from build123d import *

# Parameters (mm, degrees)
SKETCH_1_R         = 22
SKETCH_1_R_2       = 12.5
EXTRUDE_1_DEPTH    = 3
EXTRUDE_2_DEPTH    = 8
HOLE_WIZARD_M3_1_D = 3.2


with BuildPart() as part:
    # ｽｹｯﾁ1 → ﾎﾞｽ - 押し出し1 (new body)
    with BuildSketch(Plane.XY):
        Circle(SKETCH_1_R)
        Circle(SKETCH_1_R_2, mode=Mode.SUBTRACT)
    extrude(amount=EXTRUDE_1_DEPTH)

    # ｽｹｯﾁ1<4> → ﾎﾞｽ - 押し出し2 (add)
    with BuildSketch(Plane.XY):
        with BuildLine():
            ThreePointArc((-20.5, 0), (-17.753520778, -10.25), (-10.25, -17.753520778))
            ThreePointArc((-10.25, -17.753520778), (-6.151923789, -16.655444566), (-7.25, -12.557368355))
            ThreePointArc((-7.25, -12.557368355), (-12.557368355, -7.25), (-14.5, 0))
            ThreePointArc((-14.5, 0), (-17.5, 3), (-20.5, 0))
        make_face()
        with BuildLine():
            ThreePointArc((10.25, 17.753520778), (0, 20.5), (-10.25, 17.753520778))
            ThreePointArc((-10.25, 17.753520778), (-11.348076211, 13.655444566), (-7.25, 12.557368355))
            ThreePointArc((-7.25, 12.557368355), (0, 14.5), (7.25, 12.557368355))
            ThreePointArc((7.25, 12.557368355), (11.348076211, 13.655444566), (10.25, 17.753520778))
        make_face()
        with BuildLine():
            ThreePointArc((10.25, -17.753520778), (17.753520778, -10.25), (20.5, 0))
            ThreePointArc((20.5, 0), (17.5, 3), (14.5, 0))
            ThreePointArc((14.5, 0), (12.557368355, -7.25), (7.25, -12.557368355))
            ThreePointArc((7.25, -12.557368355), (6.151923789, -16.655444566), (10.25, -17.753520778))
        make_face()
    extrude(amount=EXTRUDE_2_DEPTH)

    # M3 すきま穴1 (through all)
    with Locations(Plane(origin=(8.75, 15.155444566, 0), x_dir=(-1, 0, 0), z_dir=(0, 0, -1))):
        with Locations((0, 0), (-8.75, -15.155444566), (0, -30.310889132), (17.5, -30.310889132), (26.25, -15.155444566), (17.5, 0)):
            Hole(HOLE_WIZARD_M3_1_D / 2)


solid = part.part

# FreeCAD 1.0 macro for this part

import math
import FreeCAD as App
import Part
import Sketcher
from FreeCAD import Vector

doc = App.newDocument("Part")
body = doc.addObject("PartDesign::Body", "Body")

# Sketch on XY plane
sketch1 = doc.addObject("Sketcher::SketchObject", "Sketch")
body.addObject(sketch1)
sketch1.AttachmentSupport = (doc.XY_Plane, [""])
sketch1.MapMode = "FlatFace"
sketch1.addGeometry([
    Part.Circle(Vector(0, 0, 0), Vector(0, 0, 1), 22),
    Part.Circle(Vector(0, 0, 0), Vector(0, 0, 1), 12),
], False)
sketch1.addConstraint([
    Sketcher.Constraint("Coincident", 0, 3, -1, 1),
    Sketcher.Constraint("Coincident", 1, 3, -1, 1),
    Sketcher.Constraint("Diameter", 0, 44.0),
    Sketcher.Constraint("Diameter", 1, 25.0),
])
pad1 = doc.addObject("PartDesign::Pad", "Pad")
body.addObject(pad1)
pad1.Profile = sketch1
pad1.Length = 3

# Sketch on XY plane
sketch2 = doc.addObject("Sketcher::SketchObject", "Sketch001")
body.addObject(sketch2)
sketch2.AttachmentSupport = (doc.XY_Plane, [""])
sketch2.MapMode = "FlatFace"
sketch2.addGeometry([
    Part.ArcOfCircle(Part.Circle(Vector(0, 0, 0), Vector(0, 0, 1), 20.5), math.radians(180), math.radians(240)),  # 0
    Part.ArcOfCircle(Part.Circle(Vector(-8.8, -15.2, 0), Vector(0, 0, 1), 3), math.radians(-120), math.radians(60)),  # 1
    Part.ArcOfCircle(Part.Circle(Vector(0, 0, 0), Vector(0, 0, 1), 14.5), math.radians(180), math.radians(240)),  # 2
    Part.ArcOfCircle(Part.Circle(Vector(-17.5, 0, 0), Vector(0, 0, 1), 3), math.radians(0), math.radians(180)),  # 3
    Part.ArcOfCircle(Part.Circle(Vector(0, 0, 0), Vector(0, 0, 1), 20.5), math.radians(60), math.radians(120)),  # 4
    Part.ArcOfCircle(Part.Circle(Vector(-8.8, 15.2, 0), Vector(0, 0, 1), 3), math.radians(120), math.radians(300)),  # 5
    Part.ArcOfCircle(Part.Circle(Vector(0, 0, 0), Vector(0, 0, 1), 14.5), math.radians(60), math.radians(120)),  # 6
    Part.ArcOfCircle(Part.Circle(Vector(8.8, 15.2, 0), Vector(0, 0, 1), 3), math.radians(-120), math.radians(60)),  # 7
    Part.ArcOfCircle(Part.Circle(Vector(0, 0, 0), Vector(0, 0, 1), 20.5), math.radians(-60), math.radians(0)),  # 8
    Part.ArcOfCircle(Part.Circle(Vector(17.5, 0, 0), Vector(0, 0, 1), 3), math.radians(0), math.radians(180)),  # 9
    Part.ArcOfCircle(Part.Circle(Vector(0, 0, 0), Vector(0, 0, 1), 14.5), math.radians(-60), math.radians(0)),  # 10
    Part.ArcOfCircle(Part.Circle(Vector(8.8, -15.2, 0), Vector(0, 0, 1), 3), math.radians(120), math.radians(300)),  # 11
], False)
sketch2.addConstraint([
    Sketcher.Constraint("Tangent", 0, 2, 1, 1),
    Sketcher.Constraint("Tangent", 1, 2, 2, 2),
    Sketcher.Constraint("Tangent", 2, 1, 3, 1),
    Sketcher.Constraint("Tangent", 3, 2, 0, 1),
    Sketcher.Constraint("Tangent", 4, 2, 5, 1),
    Sketcher.Constraint("Tangent", 5, 2, 6, 2),
    Sketcher.Constraint("Tangent", 6, 1, 7, 1),
    Sketcher.Constraint("Tangent", 7, 2, 4, 1),
    Sketcher.Constraint("Tangent", 8, 2, 9, 1),
    Sketcher.Constraint("Tangent", 9, 2, 10, 2),
    Sketcher.Constraint("Tangent", 10, 1, 11, 1),
    Sketcher.Constraint("Tangent", 11, 2, 8, 1),
    Sketcher.Constraint("Coincident", 0, 3, -1, 1),
    Sketcher.Constraint("Coincident", 2, 3, -1, 1),
    Sketcher.Constraint("Coincident", 4, 3, -1, 1),
    Sketcher.Constraint("Coincident", 6, 3, -1, 1),
    Sketcher.Constraint("Coincident", 8, 3, -1, 1),
    Sketcher.Constraint("Coincident", 10, 3, -1, 1),
    Sketcher.Constraint("Equal", 0, 4),
    Sketcher.Constraint("Equal", 3, 5),
    Sketcher.Constraint("Equal", 4, 8),
    Sketcher.Constraint("Equal", 7, 9),
    Sketcher.Constraint("PointOnObject", 3, 3, -1),
    Sketcher.Constraint("PointOnObject", 9, 3, -1),
    Sketcher.Constraint("Horizontal", 5, 3, 7, 3),
    Sketcher.Constraint("Horizontal", 1, 3, 11, 3),
    Sketcher.Constraint("Vertical", 1, 3, 5, 3),
    Sketcher.Constraint("Radius", 1, 3.0),
    Sketcher.Constraint("Radius", 0, 20.5),
    Sketcher.Constraint("DistanceX", 0, 2, 11, 3, 19.0),
])
pad2 = doc.addObject("PartDesign::Pad", "Pad001")
body.addObject(pad2)
pad2.Profile = sketch2
pad2.Length = 8

# Sketch on XY plane
sketch3 = doc.addObject("Sketcher::SketchObject", "Sketch002")
body.addObject(sketch3)
sketch3.AttachmentSupport = (doc.XY_Plane, [""])
sketch3.MapMode = "FlatFace"
sketch3.addGeometry([
    Part.Circle(Vector(8.8, 15.2, 0), Vector(0, 0, 1), 1.6),  # 0
    Part.Circle(Vector(17.5, 0, 0), Vector(0, 0, 1), 1.6),  # 1
    Part.Circle(Vector(8.8, -15.2, 0), Vector(0, 0, 1), 1.6),  # 2
    Part.Circle(Vector(-8.8, -15.2, 0), Vector(0, 0, 1), 1.6),  # 3
    Part.Circle(Vector(-17.5, 0, 0), Vector(0, 0, 1), 1.6),  # 4
    Part.Circle(Vector(-8.8, 15.2, 0), Vector(0, 0, 1), 1.6),  # 5
], False)
sketch3.addConstraint([
    Sketcher.Constraint("Equal", 0, 1),
    Sketcher.Constraint("Equal", 1, 2),
    Sketcher.Constraint("Equal", 2, 3),
    Sketcher.Constraint("Equal", 3, 4),
    Sketcher.Constraint("Equal", 4, 5),
    Sketcher.Constraint("Symmetric", 0, 3, 3, 3, -1, 1),
    Sketcher.Constraint("Symmetric", 1, 3, 4, 3, -1, 1),
    Sketcher.Constraint("Symmetric", 2, 3, 5, 3, -1, 1),
    Sketcher.Constraint("Symmetric", 2, 3, 3, 3, -2),
    Sketcher.Constraint("PointOnObject", 1, 3, -1),
    Sketcher.Constraint("Diameter", 0, 3.2),
    Sketcher.Constraint("DistanceX", 4, 3, 1, 3, 35.0),
    Sketcher.Constraint("DistanceX", 3, 3, 2, 3, 17.5),
    Sketcher.Constraint("DistanceY", 2, 3, 0, 3, 30.310889),
])
doc.recompute()
hole = doc.addObject("PartDesign::Hole", "Hole")
body.addObject(hole)
hole.Profile = sketch3
hole.ThreadType = "None"
hole.Diameter = 3.2
hole.DepthType = "ThroughAll"
hole.Reversed = True

doc.recompute()
